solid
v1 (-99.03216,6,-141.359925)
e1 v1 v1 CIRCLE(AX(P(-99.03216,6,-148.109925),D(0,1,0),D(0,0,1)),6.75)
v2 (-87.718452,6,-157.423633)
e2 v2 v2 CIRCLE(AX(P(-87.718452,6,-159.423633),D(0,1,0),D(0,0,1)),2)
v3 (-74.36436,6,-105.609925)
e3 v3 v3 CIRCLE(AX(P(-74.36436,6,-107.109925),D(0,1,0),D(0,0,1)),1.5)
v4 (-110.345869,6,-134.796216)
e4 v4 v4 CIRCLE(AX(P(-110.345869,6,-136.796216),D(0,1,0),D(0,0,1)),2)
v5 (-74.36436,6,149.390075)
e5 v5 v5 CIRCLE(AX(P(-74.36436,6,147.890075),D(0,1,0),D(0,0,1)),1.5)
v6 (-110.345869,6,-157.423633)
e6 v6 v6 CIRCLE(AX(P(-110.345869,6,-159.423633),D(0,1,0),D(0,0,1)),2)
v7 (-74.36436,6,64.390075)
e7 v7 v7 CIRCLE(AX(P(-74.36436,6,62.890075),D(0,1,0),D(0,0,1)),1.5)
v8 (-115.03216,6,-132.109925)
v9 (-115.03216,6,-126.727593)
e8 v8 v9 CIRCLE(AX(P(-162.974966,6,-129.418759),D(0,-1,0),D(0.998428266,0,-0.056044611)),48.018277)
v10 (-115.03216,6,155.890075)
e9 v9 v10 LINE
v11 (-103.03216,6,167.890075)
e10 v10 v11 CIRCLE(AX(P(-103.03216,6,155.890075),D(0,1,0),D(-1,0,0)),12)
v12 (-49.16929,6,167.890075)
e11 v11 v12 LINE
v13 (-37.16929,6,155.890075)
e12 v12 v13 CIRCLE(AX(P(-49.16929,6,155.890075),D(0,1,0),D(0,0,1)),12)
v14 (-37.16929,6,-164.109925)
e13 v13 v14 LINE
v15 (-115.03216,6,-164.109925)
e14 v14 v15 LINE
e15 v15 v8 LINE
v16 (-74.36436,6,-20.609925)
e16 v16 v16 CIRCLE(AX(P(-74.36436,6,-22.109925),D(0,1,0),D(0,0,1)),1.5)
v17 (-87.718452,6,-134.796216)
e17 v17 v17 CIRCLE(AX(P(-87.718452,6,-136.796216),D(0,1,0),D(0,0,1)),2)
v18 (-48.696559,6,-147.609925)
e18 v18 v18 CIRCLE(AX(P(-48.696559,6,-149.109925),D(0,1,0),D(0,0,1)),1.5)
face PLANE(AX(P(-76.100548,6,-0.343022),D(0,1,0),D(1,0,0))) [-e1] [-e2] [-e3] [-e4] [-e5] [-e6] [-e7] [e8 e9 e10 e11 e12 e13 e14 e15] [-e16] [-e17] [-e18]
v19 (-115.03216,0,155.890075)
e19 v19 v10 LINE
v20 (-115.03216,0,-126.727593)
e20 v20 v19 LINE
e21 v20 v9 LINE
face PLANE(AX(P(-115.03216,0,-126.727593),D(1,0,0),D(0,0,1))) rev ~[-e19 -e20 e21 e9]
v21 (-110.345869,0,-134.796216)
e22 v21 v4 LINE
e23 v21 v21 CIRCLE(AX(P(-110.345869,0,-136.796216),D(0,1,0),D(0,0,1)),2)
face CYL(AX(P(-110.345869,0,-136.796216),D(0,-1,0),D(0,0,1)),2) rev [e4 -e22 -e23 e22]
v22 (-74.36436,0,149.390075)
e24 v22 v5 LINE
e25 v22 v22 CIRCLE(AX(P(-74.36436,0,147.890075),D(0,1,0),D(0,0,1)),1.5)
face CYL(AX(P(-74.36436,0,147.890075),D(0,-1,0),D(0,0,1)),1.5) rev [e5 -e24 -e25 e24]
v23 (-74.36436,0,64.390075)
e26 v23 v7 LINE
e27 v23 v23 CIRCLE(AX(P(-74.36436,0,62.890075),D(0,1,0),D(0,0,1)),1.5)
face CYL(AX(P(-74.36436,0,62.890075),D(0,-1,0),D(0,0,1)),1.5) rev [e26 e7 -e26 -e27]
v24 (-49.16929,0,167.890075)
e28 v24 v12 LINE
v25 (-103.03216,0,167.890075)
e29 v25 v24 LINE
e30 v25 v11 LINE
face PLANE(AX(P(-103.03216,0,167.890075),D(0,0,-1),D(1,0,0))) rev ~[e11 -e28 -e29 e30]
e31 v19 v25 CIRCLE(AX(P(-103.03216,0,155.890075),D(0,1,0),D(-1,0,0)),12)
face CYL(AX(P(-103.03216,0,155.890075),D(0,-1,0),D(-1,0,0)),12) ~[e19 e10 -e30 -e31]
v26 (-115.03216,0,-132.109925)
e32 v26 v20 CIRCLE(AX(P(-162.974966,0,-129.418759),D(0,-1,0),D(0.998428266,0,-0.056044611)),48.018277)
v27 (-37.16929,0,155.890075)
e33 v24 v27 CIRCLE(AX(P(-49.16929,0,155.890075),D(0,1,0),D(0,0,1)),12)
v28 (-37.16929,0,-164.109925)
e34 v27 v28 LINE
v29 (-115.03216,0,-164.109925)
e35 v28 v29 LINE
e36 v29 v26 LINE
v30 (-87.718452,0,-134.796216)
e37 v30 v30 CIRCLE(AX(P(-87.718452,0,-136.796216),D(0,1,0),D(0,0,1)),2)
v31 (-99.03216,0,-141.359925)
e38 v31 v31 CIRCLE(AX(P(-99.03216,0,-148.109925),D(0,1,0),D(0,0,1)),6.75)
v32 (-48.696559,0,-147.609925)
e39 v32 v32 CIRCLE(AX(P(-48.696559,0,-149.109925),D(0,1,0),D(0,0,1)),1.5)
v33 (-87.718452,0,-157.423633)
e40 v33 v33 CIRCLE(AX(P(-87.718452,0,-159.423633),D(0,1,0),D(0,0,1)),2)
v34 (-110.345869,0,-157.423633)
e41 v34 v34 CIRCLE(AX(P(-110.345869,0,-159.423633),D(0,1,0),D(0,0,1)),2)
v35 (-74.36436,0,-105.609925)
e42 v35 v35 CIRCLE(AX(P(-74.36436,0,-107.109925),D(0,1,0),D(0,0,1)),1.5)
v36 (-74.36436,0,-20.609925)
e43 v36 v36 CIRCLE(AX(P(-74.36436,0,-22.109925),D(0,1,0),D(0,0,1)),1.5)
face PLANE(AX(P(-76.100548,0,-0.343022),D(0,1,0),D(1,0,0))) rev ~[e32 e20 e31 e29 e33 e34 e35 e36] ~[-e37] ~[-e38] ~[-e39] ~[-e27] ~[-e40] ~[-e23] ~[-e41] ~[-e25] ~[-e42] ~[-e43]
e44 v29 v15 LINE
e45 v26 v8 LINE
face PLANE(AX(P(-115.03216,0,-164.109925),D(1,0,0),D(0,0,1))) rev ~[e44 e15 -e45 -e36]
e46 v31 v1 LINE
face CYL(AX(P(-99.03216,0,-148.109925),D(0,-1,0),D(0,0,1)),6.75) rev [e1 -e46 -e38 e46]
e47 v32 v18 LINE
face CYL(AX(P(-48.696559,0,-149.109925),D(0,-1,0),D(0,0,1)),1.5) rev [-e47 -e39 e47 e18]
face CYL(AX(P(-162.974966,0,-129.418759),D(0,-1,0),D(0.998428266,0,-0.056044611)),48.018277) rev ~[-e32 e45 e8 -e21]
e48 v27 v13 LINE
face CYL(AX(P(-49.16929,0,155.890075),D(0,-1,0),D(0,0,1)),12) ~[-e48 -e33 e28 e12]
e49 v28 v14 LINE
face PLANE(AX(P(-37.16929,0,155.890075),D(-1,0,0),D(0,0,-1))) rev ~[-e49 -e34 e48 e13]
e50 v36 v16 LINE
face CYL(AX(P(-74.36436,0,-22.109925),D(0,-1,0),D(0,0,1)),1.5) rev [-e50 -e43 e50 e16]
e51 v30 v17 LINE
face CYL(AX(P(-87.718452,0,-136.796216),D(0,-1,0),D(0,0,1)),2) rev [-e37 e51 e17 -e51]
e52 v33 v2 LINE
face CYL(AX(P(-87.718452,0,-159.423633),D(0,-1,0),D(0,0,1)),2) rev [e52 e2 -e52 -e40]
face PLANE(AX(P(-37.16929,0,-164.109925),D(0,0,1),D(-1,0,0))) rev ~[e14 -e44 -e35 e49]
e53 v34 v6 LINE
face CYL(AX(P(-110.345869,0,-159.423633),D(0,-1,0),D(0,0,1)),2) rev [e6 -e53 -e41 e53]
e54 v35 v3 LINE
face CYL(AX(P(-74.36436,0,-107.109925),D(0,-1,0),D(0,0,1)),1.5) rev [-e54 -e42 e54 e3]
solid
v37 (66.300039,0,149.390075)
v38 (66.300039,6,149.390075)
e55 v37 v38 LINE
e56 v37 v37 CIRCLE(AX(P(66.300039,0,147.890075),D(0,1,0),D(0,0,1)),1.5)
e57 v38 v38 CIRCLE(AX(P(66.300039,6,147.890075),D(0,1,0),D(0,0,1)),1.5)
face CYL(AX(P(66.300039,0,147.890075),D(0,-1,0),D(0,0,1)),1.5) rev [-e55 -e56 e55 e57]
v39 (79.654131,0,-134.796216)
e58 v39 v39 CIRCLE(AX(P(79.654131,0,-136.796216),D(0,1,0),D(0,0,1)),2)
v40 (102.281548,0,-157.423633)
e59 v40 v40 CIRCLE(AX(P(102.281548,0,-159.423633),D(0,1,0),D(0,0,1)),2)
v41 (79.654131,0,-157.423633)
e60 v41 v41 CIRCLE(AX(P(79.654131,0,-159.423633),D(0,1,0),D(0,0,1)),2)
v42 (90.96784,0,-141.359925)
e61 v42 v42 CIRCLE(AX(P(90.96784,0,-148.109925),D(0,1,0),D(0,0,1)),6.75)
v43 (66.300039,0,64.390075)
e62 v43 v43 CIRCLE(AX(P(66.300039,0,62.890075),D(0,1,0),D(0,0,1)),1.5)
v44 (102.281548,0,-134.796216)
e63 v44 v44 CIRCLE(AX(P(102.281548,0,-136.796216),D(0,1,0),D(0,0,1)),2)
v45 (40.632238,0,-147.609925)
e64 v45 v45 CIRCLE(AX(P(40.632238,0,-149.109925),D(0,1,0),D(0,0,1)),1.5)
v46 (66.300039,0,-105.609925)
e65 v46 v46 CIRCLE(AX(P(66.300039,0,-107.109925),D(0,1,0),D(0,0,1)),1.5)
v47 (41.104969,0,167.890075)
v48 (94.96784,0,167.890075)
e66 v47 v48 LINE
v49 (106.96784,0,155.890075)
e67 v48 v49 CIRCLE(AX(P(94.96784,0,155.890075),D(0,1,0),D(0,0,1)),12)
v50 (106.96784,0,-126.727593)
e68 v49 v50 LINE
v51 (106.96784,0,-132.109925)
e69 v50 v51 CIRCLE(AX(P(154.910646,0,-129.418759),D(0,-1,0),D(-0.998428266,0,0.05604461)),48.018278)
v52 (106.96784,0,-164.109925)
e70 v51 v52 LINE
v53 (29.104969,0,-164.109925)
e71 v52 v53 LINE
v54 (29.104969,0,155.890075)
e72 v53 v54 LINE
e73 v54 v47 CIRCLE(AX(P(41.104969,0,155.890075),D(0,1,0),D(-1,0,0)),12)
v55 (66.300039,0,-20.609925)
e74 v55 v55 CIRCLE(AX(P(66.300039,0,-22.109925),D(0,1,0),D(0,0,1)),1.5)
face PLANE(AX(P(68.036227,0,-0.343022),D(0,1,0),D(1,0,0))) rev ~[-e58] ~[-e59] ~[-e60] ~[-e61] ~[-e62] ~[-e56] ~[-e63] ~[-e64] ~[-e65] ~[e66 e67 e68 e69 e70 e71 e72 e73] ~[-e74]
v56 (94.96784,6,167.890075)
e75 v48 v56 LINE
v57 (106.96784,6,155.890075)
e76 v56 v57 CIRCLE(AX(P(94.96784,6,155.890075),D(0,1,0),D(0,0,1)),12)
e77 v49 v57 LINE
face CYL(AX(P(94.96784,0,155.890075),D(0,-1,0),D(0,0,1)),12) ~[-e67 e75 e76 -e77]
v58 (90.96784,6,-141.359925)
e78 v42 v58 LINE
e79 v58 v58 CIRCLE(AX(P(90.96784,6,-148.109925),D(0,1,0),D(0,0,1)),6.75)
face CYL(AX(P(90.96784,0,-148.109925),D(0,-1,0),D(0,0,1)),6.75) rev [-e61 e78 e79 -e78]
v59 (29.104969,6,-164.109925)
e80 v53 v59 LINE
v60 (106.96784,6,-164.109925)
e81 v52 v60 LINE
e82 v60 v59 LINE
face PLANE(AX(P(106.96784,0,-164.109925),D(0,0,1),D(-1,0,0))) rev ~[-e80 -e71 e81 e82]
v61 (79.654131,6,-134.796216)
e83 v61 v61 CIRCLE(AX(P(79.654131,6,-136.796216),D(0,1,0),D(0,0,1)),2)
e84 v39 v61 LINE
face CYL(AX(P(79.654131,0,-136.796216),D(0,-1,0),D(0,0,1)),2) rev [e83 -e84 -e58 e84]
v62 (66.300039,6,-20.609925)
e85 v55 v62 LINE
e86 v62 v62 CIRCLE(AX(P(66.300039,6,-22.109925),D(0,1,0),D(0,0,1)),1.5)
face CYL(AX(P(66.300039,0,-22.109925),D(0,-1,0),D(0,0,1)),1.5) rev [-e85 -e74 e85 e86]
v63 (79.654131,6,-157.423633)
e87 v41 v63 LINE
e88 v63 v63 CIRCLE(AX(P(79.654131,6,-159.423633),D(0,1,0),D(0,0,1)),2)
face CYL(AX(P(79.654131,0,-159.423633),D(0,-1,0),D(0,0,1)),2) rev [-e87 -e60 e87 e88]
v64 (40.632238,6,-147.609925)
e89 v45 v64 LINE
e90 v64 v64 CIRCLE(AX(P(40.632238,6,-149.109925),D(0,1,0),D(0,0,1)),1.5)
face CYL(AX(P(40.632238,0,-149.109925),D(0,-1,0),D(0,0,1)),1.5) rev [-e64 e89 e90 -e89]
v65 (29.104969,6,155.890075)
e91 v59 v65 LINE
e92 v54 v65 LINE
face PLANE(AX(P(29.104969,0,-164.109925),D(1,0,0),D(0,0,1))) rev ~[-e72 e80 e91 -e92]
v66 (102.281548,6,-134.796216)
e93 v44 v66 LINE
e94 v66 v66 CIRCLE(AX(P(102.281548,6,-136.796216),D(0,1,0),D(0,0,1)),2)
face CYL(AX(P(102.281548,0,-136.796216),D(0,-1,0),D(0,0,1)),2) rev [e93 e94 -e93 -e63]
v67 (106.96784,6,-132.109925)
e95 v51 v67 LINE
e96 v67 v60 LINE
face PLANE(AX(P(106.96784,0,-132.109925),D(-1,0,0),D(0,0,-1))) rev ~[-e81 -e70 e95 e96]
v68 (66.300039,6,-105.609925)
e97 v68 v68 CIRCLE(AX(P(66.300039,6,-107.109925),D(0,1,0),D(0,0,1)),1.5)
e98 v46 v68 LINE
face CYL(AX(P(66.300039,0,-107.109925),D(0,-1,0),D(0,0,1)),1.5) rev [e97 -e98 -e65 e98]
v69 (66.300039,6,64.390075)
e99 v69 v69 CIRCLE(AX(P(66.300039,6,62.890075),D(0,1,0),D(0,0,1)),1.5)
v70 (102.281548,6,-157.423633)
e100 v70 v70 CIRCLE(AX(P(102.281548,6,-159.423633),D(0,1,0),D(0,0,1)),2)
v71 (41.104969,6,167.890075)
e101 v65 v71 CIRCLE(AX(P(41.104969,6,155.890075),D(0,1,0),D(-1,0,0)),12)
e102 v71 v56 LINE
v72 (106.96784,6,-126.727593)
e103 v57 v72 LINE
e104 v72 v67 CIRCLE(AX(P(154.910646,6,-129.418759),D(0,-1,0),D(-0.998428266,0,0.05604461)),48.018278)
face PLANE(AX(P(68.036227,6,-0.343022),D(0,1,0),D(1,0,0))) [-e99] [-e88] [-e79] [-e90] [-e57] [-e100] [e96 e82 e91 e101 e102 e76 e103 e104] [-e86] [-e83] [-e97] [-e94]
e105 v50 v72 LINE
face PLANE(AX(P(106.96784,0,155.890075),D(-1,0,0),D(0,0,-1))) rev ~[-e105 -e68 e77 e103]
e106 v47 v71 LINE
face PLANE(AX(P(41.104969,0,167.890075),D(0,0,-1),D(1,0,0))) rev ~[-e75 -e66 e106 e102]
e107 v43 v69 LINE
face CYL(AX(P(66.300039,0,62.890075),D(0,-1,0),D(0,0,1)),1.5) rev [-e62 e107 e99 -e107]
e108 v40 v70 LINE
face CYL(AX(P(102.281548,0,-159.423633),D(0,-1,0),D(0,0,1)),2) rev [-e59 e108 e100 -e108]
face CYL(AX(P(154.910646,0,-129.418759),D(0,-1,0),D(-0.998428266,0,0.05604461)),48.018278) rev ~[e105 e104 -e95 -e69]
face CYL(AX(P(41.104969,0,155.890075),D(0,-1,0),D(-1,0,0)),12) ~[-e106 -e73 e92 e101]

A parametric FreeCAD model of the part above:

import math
import FreeCAD as App
import Part
import Sketcher
from FreeCAD import Vector
Q = App.Units.Quantity

doc = App.newDocument("Part")
body = doc.addObject("PartDesign::Body", "Body")

sketch1 = body.newObject("Sketcher::SketchObject", "Sketch")
sketch1.AttachmentSupport = (doc.getObject("XZ_Plane"), [""])
sketch1.MapMode = "FlatFace"
sketch1.addGeometry([
    Part.LineSegment(Vector(107, -132.1, 0), Vector(107, -164.1, 0)),
    Part.LineSegment(Vector(107, -164.1, 0), Vector(29.1, -164.1, 0)),
    Part.LineSegment(Vector(29.1, -164.1, 0), Vector(29.1, 155.9, 0)),
    Part.ArcOfCircle(Part.Circle(Vector(41.1, 155.9, 0), Vector(0, 0, 1), 12), math.radians(90), math.radians(180)),
    Part.LineSegment(Vector(41.1, 167.9, 0), Vector(95, 167.9, 0)),
    Part.ArcOfCircle(Part.Circle(Vector(95, 155.9, 0), Vector(0, 0, 1), 12), math.radians(0), math.radians(90)),
    Part.LineSegment(Vector(107, 155.9, 0), Vector(107, -126.7, 0)),
    Part.ArcOfCircle(Part.Circle(Vector(154.9, -129.4, 0), Vector(0, 0, 1), 48), math.radians(176.79), math.radians(183.21)),
    Part.Circle(Vector(66.3, 147.9, 0), Vector(0, 0, 1), 1.5),
    Part.Circle(Vector(66.3, 62.9, 0), Vector(0, 0, 1), 1.5),
    Part.Circle(Vector(66.3, -22.1, 0), Vector(0, 0, 1), 1.5),
    Part.Circle(Vector(40.6, -149.1, 0), Vector(0, 0, 1), 1.5),
    Part.Circle(Vector(66.3, -107.1, 0), Vector(0, 0, 1), 1.5),
    Part.Circle(Vector(79.7, -136.8, 0), Vector(0, 0, 1), 2),
    Part.Circle(Vector(79.7, -159.4, 0), Vector(0, 0, 1), 2),
    Part.Circle(Vector(91, -148.1, 0), Vector(0, 0, 1), 6.8),
    Part.Circle(Vector(102.3, -136.8, 0), Vector(0, 0, 1), 2),
    Part.Circle(Vector(102.3, -159.4, 0), Vector(0, 0, 1), 2),
], False)
sketch1.addConstraint([
    Sketcher.Constraint("Coincident", 0, 2, 1, 1),
    Sketcher.Constraint("Coincident", 1, 2, 2, 1),
    Sketcher.Constraint("Tangent", 2, 2, 3, 2),
    Sketcher.Constraint("Tangent", 3, 1, 4, 1),
    Sketcher.Constraint("Tangent", 4, 2, 5, 2),
    Sketcher.Constraint("Tangent", 5, 1, 6, 1),
    Sketcher.Constraint("Coincident", 6, 2, 7, 1),
    Sketcher.Constraint("Coincident", 7, 2, 0, 1),
    Sketcher.Constraint("Vertical", 0),
    Sketcher.Constraint("Horizontal", 1),
    Sketcher.Constraint("Vertical", 2),
    Sketcher.Constraint("Horizontal", 4),
    Sketcher.Constraint("Vertical", 6),
    Sketcher.Constraint("Equal", 3, 5),
    Sketcher.Constraint("Equal", 8, 9),
    Sketcher.Constraint("Equal", 9, 10),
    Sketcher.Constraint("Equal", 10, 11),
    Sketcher.Constraint("Equal", 11, 12),
    Sketcher.Constraint("Equal", 13, 14),
    Sketcher.Constraint("Equal", 14, 16),
    Sketcher.Constraint("Equal", 16, 17),
    Sketcher.Constraint("Horizontal", 13, 3, 16, 3),
    Sketcher.Constraint("Horizontal", 14, 3, 17, 3),
    Sketcher.Constraint("Vertical", 8, 3, 9, 3),
    Sketcher.Constraint("Vertical", 9, 3, 10, 3),
    Sketcher.Constraint("Vertical", 10, 3, 12, 3),
    Sketcher.Constraint("Vertical", 13, 3, 14, 3),
    Sketcher.Constraint("Vertical", 16, 3, 17, 3),
    Sketcher.Constraint("Vertical", 0, 2, 5, 1),
    Sketcher.Constraint("Diameter", 8, Q("3 mm")),
    Sketcher.Constraint("Diameter", 13, Q("4 mm")),
    Sketcher.Constraint("Radius", 3, Q("12 mm")),
    Sketcher.Constraint("Diameter", 15, Q("13.5 mm")),
    Sketcher.Constraint("DistanceY", 0, 2, 0, 1, Q("32 mm")),
    Sketcher.Constraint("DistanceY", 2, 1, 2, 2, Q("320 mm")),
    Sketcher.Constraint("DistanceY", 8, 3, 3, 3, Q("8 mm")),
    Sketcher.Constraint("DistanceY", 9, 3, 8, 3, Q("85 mm")),
    Sketcher.Constraint("DistanceY", 10, 3, 9, 3, Q("85 mm")),
    Sketcher.Constraint("DistanceY", 11, 3, 10, 3, Q("127 mm")),
    Sketcher.Constraint("DistanceY", 11, 3, 12, 3, Q("42 mm")),
    Sketcher.Constraint("DistanceY", 15, 3, 12, 3, Q("41 mm")),
    Sketcher.Constraint("DistanceX", 15, 3, 0, 2, Q("16 mm")),
    Sketcher.Constraint("Radius", 7, Q("48.018278 mm")),
    Sketcher.Constraint("DistanceX", 1, 2, 1, 1, Q("77.862871 mm")),
    Sketcher.Constraint("DistanceY", 6, 2, 6, 1, Q("282.617669 mm")),
    Sketcher.Constraint("DistanceX", 8, 3, 5, 3, Q("28.667801 mm")),
    Sketcher.Constraint("DistanceX", 11, 3, 10, 3, Q("25.667801 mm")),
    Sketcher.Constraint("DistanceX", -1, 1, 3, 3, Q("41.104969 mm")),
    Sketcher.Constraint("DistanceY", 7, 3, -1, 1, Q("129.418759 mm")),
    Sketcher.Constraint("DistanceX", -1, 1, 13, 3, Q("79.654131 mm")),
    Sketcher.Constraint("DistanceX", -1, 1, 16, 3, Q("102.281548 mm")),
    Sketcher.Constraint("DistanceY", 13, 3, 12, 3, Q("29.686292 mm")),
    Sketcher.Constraint("DistanceY", 14, 3, 11, 3, Q("10.313708 mm")),
])
pad1 = body.newObject("PartDesign::Pad", "Pad")
pad1.Profile = sketch1
pad1.Length = 6
pad1.Reversed = True
body2 = doc.addObject("PartDesign::Body", "Body001")

sketch2 = body2.newObject("Sketcher::SketchObject", "Sketch001")
sketch2.AttachmentSupport = (doc.getObject("XZ_Plane001"), [""])
sketch2.MapMode = "FlatFace"
sketch2.addGeometry([
    Part.LineSegment(Vector(-37.2, -164.1, 0), Vector(-115, -164.1, 0)),
    Part.LineSegment(Vector(-115, -164.1, 0), Vector(-115, -132.1, 0)),
    Part.ArcOfCircle(Part.Circle(Vector(-163, -129.4, 0), Vector(0, 0, 1), 48), math.radians(-3.21), math.radians(3.21)),
    Part.LineSegment(Vector(-115, -126.7, 0), Vector(-115, 155.9, 0)),
    Part.ArcOfCircle(Part.Circle(Vector(-103, 155.9, 0), Vector(0, 0, 1), 12), math.radians(90), math.radians(180)),
    Part.LineSegment(Vector(-103, 167.9, 0), Vector(-49.2, 167.9, 0)),
    Part.ArcOfCircle(Part.Circle(Vector(-49.2, 155.9, 0), Vector(0, 0, 1), 12), math.radians(0), math.radians(90)),
    Part.LineSegment(Vector(-37.2, 155.9, 0), Vector(-37.2, -164.1, 0)),
    Part.Circle(Vector(-74.4, 147.9, 0), Vector(0, 0, 1), 1.5),
    Part.Circle(Vector(-74.4, 62.9, 0), Vector(0, 0, 1), 1.5),
    Part.Circle(Vector(-110.3, -136.8, 0), Vector(0, 0, 1), 2),
    Part.Circle(Vector(-110.3, -159.4, 0), Vector(0, 0, 1), 2),
    Part.Circle(Vector(-99, -148.1, 0), Vector(0, 0, 1), 6.8),
    Part.Circle(Vector(-87.7, -136.8, 0), Vector(0, 0, 1), 2),
    Part.Circle(Vector(-87.7, -159.4, 0), Vector(0, 0, 1), 2),
    Part.Circle(Vector(-74.4, -22.1, 0), Vector(0, 0, 1), 1.5),
    Part.Circle(Vector(-74.4, -107.1, 0), Vector(0, 0, 1), 1.5),
    Part.Circle(Vector(-48.7, -149.1, 0), Vector(0, 0, 1), 1.5),
], False)
sketch2.addConstraint([
    Sketcher.Constraint("Coincident", 0, 2, 1, 1),
    Sketcher.Constraint("Coincident", 1, 2, 2, 1),
    Sketcher.Constraint("Coincident", 2, 2, 3, 1),
    Sketcher.Constraint("Tangent", 3, 2, 4, 2),
    Sketcher.Constraint("Tangent", 4, 1, 5, 1),
    Sketcher.Constraint("Tangent", 5, 2, 6, 2),
    Sketcher.Constraint("Tangent", 6, 1, 7, 1),
    Sketcher.Constraint("Coincident", 7, 2, 0, 1),
    Sketcher.Constraint("Horizontal", 0),
    Sketcher.Constraint("Vertical", 1),
    Sketcher.Constraint("Vertical", 3),
    Sketcher.Constraint("Horizontal", 5),
    Sketcher.Constraint("Vertical", 7),
    Sketcher.Constraint("Equal", 4, 6),
    Sketcher.Constraint("Equal", 8, 9),
    Sketcher.Constraint("Equal", 10, 11),
    Sketcher.Constraint("Equal", 11, 13),
    Sketcher.Constraint("Equal", 13, 14),
    Sketcher.Constraint("Equal", 9, 15),
    Sketcher.Constraint("Equal", 15, 16),
    Sketcher.Constraint("Equal", 16, 17),
    Sketcher.Constraint("Horizontal", 10, 3, 13, 3),
    Sketcher.Constraint("Horizontal", 11, 3, 14, 3),
    Sketcher.Constraint("Vertical", 8, 3, 9, 3),
    Sketcher.Constraint("Vertical", 10, 3, 11, 3),
    Sketcher.Constraint("Vertical", 13, 3, 14, 3),
    Sketcher.Constraint("Vertical", 9, 3, 15, 3),
    Sketcher.Constraint("Vertical", 15, 3, 16, 3),
    Sketcher.Constraint("Vertical", 1, 2, 2, 2),
    Sketcher.Constraint("Diameter", 8, Q("3 mm")),
    Sketcher.Constraint("Diameter", 10, Q("4 mm")),
    Sketcher.Constraint("Radius", 4, Q("12 mm")),
    Sketcher.Constraint("Diameter", 12, Q("13.5 mm")),
    Sketcher.Constraint("DistanceY", 1, 1, 1, 2, Q("32 mm")),
    Sketcher.Constraint("DistanceY", 7, 2, 7, 1, Q("320 mm")),
    Sketcher.Constraint("DistanceY", 8, 3, 6, 3, Q("8 mm")),
    Sketcher.Constraint("DistanceY", 9, 3, 8, 3, Q("85 mm")),
    Sketcher.Constraint("DistanceY", 12, 3, 9, 3, Q("211 mm")),
    Sketcher.Constraint("DistanceY", 15, 3, 9, 3, Q("85 mm")),
    Sketcher.Constraint("DistanceY", 12, 3, 16, 3, Q("41 mm")),
    Sketcher.Constraint("DistanceY", 17, 3, 16, 3, Q("42 mm")),
    Sketcher.Constraint("DistanceX", 0, 2, 12, 3, Q("16 mm")),
    Sketcher.Constraint("Radius", 2, Q("48.018277 mm")),
    Sketcher.Constraint("DistanceX", 0, 2, 0, 1, Q("77.862871 mm")),
    Sketcher.Constraint("DistanceY", 3, 1, 3, 2, Q("282.617669 mm")),
    Sketcher.Constraint("DistanceX", 4, 3, 8, 3, Q("28.667801 mm")),
    Sketcher.Constraint("DistanceX", 16, 3, 17, 3, Q("25.667801 mm")),
    Sketcher.Constraint("DistanceY", 2, 3, -1, 1, Q("129.418759 mm")),
    Sketcher.Constraint("DistanceX", 4, 3, -1, 1, Q("103.03216 mm")),
    Sketcher.Constraint("DistanceX", 10, 3, -1, 1, Q("110.345869 mm")),
    Sketcher.Constraint("DistanceX", 13, 3, -1, 1, Q("87.718452 mm")),
    Sketcher.Constraint("DistanceY", 10, 3, 9, 3, Q("199.686292 mm")),
    Sketcher.Constraint("DistanceY", 11, 3, 9, 3, Q("222.313708 mm")),
])
pad2 = body2.newObject("PartDesign::Pad", "Pad001")
pad2.Profile = sketch2
pad2.Length = 6
pad2.Reversed = True

doc.recompute()
